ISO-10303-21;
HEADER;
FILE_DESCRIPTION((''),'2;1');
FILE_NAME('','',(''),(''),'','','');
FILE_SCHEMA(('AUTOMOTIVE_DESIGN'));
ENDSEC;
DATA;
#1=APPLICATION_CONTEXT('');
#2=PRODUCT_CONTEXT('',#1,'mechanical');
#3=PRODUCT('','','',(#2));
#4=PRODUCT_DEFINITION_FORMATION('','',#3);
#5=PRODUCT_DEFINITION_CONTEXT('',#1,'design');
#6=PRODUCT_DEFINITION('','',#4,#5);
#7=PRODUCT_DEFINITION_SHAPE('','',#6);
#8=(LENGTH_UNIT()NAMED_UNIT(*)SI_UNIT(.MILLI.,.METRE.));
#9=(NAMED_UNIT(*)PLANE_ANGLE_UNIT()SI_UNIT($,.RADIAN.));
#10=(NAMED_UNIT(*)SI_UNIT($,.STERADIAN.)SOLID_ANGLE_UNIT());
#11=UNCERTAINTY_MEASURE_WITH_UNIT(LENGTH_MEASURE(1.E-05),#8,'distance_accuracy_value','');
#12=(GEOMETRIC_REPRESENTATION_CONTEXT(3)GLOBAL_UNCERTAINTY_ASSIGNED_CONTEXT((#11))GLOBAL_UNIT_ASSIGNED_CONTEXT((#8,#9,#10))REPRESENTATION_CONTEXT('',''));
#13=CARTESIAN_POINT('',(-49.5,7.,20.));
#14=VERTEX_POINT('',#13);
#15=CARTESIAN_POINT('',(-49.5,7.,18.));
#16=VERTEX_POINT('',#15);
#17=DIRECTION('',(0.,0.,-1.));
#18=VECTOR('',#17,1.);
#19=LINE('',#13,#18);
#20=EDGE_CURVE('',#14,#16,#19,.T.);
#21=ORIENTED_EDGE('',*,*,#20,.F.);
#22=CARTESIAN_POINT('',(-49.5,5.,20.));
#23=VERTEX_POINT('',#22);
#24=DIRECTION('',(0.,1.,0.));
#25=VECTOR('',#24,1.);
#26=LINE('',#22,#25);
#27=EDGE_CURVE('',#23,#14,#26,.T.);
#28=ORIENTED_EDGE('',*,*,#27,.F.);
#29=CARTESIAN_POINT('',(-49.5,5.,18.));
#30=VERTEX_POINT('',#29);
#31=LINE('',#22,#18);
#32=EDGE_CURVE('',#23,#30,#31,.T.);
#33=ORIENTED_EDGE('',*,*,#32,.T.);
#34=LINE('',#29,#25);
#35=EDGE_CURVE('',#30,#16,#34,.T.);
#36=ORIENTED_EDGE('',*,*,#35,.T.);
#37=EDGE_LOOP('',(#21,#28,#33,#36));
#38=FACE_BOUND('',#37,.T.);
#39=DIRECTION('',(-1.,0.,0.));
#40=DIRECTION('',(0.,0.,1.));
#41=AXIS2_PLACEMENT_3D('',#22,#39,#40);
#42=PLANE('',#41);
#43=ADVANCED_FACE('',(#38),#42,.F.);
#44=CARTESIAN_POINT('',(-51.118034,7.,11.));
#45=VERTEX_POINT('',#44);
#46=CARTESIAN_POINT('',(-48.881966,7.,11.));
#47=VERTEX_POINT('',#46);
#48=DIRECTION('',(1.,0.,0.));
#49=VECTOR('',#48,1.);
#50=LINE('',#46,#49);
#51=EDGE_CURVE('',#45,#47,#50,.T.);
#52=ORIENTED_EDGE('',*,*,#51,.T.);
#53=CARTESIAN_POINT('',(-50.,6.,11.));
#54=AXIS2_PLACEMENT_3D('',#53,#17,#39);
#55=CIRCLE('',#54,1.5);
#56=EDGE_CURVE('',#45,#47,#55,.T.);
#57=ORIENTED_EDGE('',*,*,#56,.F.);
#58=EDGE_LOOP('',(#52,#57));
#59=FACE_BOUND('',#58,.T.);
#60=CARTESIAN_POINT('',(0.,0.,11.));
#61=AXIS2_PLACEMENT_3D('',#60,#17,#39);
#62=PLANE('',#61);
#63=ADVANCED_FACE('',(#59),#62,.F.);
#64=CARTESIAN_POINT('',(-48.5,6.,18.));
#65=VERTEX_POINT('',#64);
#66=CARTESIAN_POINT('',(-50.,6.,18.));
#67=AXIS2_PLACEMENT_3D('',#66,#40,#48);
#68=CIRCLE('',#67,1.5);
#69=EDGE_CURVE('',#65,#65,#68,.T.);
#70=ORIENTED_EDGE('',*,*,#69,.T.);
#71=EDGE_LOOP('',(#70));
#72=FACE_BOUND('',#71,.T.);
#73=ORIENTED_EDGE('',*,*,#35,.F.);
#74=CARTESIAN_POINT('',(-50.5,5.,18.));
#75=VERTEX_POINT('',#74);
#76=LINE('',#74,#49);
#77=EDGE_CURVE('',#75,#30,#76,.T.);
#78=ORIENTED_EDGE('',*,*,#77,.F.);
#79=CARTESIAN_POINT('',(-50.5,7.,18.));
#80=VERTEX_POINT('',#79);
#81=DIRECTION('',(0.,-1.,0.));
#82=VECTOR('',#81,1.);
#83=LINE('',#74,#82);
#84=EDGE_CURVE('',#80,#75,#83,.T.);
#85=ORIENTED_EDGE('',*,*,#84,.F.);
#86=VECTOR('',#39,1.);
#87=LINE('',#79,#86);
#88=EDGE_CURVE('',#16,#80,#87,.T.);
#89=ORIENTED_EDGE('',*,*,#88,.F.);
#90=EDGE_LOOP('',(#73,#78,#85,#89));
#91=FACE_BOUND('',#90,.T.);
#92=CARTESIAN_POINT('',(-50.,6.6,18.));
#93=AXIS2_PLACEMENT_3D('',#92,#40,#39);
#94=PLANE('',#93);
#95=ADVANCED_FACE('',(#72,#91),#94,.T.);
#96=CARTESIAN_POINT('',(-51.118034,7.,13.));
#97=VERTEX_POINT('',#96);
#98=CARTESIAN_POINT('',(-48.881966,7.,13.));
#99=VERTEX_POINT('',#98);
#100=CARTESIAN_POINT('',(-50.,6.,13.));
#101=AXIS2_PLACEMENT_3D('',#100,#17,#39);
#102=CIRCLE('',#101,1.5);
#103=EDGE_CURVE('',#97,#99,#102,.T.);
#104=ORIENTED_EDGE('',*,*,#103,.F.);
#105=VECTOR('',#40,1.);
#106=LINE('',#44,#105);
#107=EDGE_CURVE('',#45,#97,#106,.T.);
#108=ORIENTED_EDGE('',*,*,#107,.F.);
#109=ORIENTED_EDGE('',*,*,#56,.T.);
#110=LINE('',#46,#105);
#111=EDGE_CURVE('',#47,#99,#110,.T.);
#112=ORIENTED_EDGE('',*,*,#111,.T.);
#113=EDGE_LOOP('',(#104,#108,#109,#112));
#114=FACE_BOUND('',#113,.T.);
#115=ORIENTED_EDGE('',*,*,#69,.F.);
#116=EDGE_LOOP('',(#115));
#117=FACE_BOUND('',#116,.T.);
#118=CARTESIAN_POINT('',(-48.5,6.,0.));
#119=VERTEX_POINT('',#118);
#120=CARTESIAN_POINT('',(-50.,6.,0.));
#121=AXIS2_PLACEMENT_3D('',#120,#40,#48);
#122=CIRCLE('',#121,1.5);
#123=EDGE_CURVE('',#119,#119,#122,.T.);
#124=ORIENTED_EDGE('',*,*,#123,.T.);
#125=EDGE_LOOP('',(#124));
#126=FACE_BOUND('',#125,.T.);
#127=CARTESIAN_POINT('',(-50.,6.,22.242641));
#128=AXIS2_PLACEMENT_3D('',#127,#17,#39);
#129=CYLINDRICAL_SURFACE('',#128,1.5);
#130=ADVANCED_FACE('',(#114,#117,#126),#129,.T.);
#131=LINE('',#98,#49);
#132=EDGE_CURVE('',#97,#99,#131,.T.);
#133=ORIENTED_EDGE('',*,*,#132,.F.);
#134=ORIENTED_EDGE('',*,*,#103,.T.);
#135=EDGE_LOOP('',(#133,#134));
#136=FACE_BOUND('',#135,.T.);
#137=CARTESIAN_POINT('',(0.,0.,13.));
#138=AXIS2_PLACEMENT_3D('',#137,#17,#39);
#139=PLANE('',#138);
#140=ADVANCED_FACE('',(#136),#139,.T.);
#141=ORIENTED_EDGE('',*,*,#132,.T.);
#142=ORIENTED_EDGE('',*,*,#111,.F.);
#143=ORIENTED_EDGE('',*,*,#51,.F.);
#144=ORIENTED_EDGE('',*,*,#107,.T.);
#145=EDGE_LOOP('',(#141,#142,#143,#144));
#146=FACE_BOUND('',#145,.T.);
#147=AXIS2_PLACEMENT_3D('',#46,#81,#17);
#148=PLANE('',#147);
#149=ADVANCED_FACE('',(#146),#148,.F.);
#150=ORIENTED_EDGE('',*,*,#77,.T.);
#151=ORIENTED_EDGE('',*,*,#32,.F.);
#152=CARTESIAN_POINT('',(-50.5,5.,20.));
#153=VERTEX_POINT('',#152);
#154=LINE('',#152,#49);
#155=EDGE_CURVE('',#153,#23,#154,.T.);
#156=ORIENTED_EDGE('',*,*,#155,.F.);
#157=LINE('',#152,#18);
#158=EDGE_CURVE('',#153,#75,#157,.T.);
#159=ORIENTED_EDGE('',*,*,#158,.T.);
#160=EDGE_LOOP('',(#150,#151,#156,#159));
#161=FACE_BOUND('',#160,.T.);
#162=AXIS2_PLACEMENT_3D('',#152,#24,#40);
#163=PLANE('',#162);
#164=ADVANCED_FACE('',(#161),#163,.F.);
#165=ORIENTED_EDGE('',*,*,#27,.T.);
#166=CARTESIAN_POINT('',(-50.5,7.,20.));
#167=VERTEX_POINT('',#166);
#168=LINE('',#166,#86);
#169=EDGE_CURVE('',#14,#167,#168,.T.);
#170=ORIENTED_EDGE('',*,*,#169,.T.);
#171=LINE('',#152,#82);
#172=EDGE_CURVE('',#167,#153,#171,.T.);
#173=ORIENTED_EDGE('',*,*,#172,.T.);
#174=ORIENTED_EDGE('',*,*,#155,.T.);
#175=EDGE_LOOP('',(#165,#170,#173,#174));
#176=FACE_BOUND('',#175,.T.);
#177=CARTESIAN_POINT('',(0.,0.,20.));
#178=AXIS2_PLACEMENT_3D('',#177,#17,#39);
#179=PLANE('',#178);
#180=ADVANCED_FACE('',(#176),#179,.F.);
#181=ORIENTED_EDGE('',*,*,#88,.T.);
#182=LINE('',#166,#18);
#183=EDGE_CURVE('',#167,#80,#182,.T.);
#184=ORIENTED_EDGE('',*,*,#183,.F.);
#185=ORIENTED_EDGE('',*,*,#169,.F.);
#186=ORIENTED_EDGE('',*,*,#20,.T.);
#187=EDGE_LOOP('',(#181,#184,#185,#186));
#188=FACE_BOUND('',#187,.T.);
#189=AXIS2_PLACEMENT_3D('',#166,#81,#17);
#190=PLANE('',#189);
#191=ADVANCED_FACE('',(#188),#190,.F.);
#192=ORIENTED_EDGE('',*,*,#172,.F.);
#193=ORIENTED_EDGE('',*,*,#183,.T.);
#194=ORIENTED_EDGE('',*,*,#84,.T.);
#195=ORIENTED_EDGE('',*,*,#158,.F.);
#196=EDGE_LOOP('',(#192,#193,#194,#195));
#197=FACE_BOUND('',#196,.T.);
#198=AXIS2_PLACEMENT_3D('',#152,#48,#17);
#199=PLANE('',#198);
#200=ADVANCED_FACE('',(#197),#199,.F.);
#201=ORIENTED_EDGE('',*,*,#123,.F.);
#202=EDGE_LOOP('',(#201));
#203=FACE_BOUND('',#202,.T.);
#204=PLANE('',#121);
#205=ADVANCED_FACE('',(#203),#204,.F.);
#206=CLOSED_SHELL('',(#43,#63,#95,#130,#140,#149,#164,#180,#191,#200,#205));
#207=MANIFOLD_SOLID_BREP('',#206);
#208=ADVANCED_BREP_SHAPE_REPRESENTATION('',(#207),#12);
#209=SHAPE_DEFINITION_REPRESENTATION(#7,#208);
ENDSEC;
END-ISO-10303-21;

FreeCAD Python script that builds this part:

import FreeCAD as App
import Part
import Sketcher
Q = App.Units.Quantity


def add_polygon(sketch, points):
    """Adds a closed chain of lines whose ends are joined by coincident constraints."""
    first, n = sketch.GeometryCount, len(points)
    for a, b in zip(points, points[1:] + points[:1]):
        sketch.addGeometry(Part.LineSegment(App.Vector(*a, 0), App.Vector(*b, 0)), False)
    for i in range(n):
        sketch.addConstraint(Sketcher.Constraint("Coincident", first + i, 2, first + (i + 1) % n, 1))

doc = App.newDocument("Part")
body = doc.addObject("PartDesign::Body", "Body")

# Sketch on XY plane
sketch1 = doc.addObject("Sketcher::SketchObject", "Sketch")
body.addObject(sketch1)
sketch1.AttachmentSupport = (doc.XY_Plane, [""])
sketch1.MapMode = "FlatFace"
sketch1.addGeometry(Part.Circle(App.Vector(-50, 6, 0), App.Vector(0, 0, 1), 1.5), False)
sketch1.addConstraint(Sketcher.Constraint("Diameter", 0, Q("3 mm")))
sketch1.addConstraint(Sketcher.Constraint("DistanceX", 0, 3, -1, 1, Q("50 mm")))
sketch1.addConstraint(Sketcher.Constraint("DistanceY", -1, 1, 0, 3, Q("6 mm")))
pad1 = doc.addObject("PartDesign::Pad", "Pad")
body.addObject(pad1)
pad1.Profile = sketch1
pad1.Length = 18

# Sketch on XY plane
sketch2 = doc.addObject("Sketcher::SketchObject", "Sketch001")
body.addObject(sketch2)
sketch2.AttachmentSupport = (doc.XY_Plane, [""])
sketch2.MapMode = "FlatFace"
sketch2.AttachmentOffset = App.Placement(App.Vector(0, 0, 18), App.Rotation())
add_polygon(sketch2, [(-50.5, 7), (-50.5, 5), (-49.5, 5), (-49.5, 7)])  # lines 0-3
sketch2.addConstraint(Sketcher.Constraint("Vertical", 0))
sketch2.addConstraint(Sketcher.Constraint("Horizontal", 1))
sketch2.addConstraint(Sketcher.Constraint("Vertical", 2))
sketch2.addConstraint(Sketcher.Constraint("Horizontal", 3))
sketch2.addConstraint(Sketcher.Constraint("DistanceX", 1, 1, 1, 2, Q("1 mm")))
sketch2.addConstraint(Sketcher.Constraint("DistanceY", 0, 2, 0, 1, Q("2 mm")))
sketch2.addConstraint(Sketcher.Constraint("DistanceY", -1, 1, 0, 2, Q("5 mm")))
sketch2.addConstraint(Sketcher.Constraint("DistanceX", 0, 2, -1, 1, Q("50.5 mm")))
pad2 = doc.addObject("PartDesign::Pad", "Pad001")
body.addObject(pad2)
pad2.Profile = sketch2
pad2.Length = 2

# Sketch on XY plane
sketch3 = doc.addObject("Sketcher::SketchObject", "Sketch002")
body.addObject(sketch3)
sketch3.AttachmentSupport = (doc.XY_Plane, [""])
sketch3.MapMode = "FlatFace"
sketch3.AttachmentOffset = App.Placement(App.Vector(0, 0, 13), App.Rotation())
add_polygon(sketch3, [(-51.1, 8), (-51.1, 7), (-48.9, 7), (-48.9, 8)])  # lines 0-3
sketch3.addConstraint(Sketcher.Constraint("Vertical", 0))
sketch3.addConstraint(Sketcher.Constraint("Horizontal", 1))
sketch3.addConstraint(Sketcher.Constraint("Vertical", 2))
sketch3.addConstraint(Sketcher.Constraint("Horizontal", 3))
sketch3.addConstraint(Sketcher.Constraint("DistanceY", 0, 2, 0, 1, Q("1 mm")))
sketch3.addConstraint(Sketcher.Constraint("DistanceY", -1, 1, 0, 2, Q("7 mm")))
sketch3.addConstraint(Sketcher.Constraint("DistanceX", 1, 1, 1, 2, Q("2.236068 mm")))
sketch3.addConstraint(Sketcher.Constraint("DistanceX", 0, 2, -1, 1, Q("51.118034 mm")))
pocket1 = doc.addObject("PartDesign::Pocket", "Pocket")
body.addObject(pocket1)
pocket1.Profile = sketch3
pocket1.Length = 2

doc.recompute()
